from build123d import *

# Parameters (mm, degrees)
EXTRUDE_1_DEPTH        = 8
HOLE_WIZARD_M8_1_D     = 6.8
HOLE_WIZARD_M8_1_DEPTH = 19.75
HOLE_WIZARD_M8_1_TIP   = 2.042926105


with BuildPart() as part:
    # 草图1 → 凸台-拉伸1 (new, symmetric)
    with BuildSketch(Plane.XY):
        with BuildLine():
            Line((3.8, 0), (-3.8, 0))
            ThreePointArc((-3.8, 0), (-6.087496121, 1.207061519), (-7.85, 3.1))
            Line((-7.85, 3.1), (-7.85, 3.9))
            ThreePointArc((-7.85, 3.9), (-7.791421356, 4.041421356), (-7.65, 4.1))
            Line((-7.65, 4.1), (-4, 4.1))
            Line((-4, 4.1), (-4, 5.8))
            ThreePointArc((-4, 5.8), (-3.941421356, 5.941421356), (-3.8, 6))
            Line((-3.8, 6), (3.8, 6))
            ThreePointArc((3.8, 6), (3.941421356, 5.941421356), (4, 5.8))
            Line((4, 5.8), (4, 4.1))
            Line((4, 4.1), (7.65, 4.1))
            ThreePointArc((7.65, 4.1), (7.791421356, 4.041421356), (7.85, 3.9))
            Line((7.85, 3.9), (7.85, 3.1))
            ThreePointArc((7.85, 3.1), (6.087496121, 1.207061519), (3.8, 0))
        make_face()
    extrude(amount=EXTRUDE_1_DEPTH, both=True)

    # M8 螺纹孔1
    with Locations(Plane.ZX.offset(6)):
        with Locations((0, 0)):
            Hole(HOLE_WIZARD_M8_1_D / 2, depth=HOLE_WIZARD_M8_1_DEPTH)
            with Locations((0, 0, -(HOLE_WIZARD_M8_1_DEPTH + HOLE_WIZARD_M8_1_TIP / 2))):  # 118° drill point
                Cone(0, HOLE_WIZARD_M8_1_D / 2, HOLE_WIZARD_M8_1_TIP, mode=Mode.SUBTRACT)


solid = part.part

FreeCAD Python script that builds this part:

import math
import FreeCAD as App
import Part
import Sketcher
from FreeCAD import Vector
Q = App.Units.Quantity

doc = App.newDocument("Part")
body = doc.addObject("PartDesign::Body", "Body")

# Sketch on XY plane
sketch1 = body.newObject("Sketcher::SketchObject", "Sketch")
sketch1.AttachmentSupport = (doc.getObject("XY_Plane"), [""])
sketch1.MapMode = "FlatFace"
sketch1.addGeometry([
    Part.LineSegment(Vector(-3.8, 0, 0), Vector(3.8, 0, 0)),  # 0
    Part.ArcOfCircle(Part.Circle(Vector(1.38, 7.36, 0), Vector(0, 0, 1), 7.74), math.radians(-72), math.radians(-33)),  # 1
    Part.LineSegment(Vector(7.85, 3.1, 0), Vector(7.85, 3.9, 0)),  # 2
    Part.ArcOfCircle(Part.Circle(Vector(7.65, 3.9, 0), Vector(0, 0, 1), 0.2), math.radians(0), math.radians(90)),  # 3
    Part.LineSegment(Vector(7.65, 4.1, 0), Vector(4, 4.1, 0)),  # 4
    Part.LineSegment(Vector(4, 4.1, 0), Vector(4, 5.8, 0)),  # 5
    Part.ArcOfCircle(Part.Circle(Vector(3.8, 5.8, 0), Vector(0, 0, 1), 0.2), math.radians(0), math.radians(90)),  # 6
    Part.LineSegment(Vector(3.8, 6, 0), Vector(-3.8, 6, 0)),  # 7
    Part.ArcOfCircle(Part.Circle(Vector(-3.8, 5.8, 0), Vector(0, 0, 1), 0.2), math.radians(90), math.radians(180)),  # 8
    Part.LineSegment(Vector(-4, 5.8, 0), Vector(-4, 4.1, 0)),  # 9
    Part.LineSegment(Vector(-4, 4.1, 0), Vector(-7.65, 4.1, 0)),  # 10
    Part.ArcOfCircle(Part.Circle(Vector(-7.65, 3.9, 0), Vector(0, 0, 1), 0.2), math.radians(90), math.radians(180)),  # 11
    Part.LineSegment(Vector(-7.85, 3.9, 0), Vector(-7.85, 3.1, 0)),  # 12
    Part.ArcOfCircle(Part.Circle(Vector(-1.38, 7.36, 0), Vector(0, 0, 1), 7.74), math.radians(-147), math.radians(-108)),  # 13
], False)
sketch1.addConstraint([
    Sketcher.Constraint("Coincident", 0, 2, 1, 1),
    Sketcher.Constraint("Coincident", 1, 2, 2, 1),
    Sketcher.Constraint("Tangent", 2, 2, 3, 1),
    Sketcher.Constraint("Tangent", 3, 2, 4, 1),
    Sketcher.Constraint("Coincident", 4, 2, 5, 1),
    Sketcher.Constraint("Tangent", 5, 2, 6, 1),
    Sketcher.Constraint("Tangent", 6, 2, 7, 1),
    Sketcher.Constraint("Tangent", 7, 2, 8, 1),
    Sketcher.Constraint("Tangent", 8, 2, 9, 1),
    Sketcher.Constraint("Coincident", 9, 2, 10, 1),
    Sketcher.Constraint("Tangent", 10, 2, 11, 1),
    Sketcher.Constraint("Tangent", 11, 2, 12, 1),
    Sketcher.Constraint("Coincident", 12, 2, 13, 1),
    Sketcher.Constraint("Coincident", 13, 2, 0, 1),
    Sketcher.Constraint("Horizontal", 0),
    Sketcher.Constraint("Vertical", 2),
    Sketcher.Constraint("Horizontal", 4),
    Sketcher.Constraint("Vertical", 5),
    Sketcher.Constraint("Horizontal", 7),
    Sketcher.Constraint("Vertical", 9),
    Sketcher.Constraint("Horizontal", 10),
    Sketcher.Constraint("Vertical", 12),
    Sketcher.Constraint("Equal", 3, 6),
    Sketcher.Constraint("Equal", 6, 8),
    Sketcher.Constraint("Equal", 8, 11),
    Sketcher.Constraint("Equal", 1, 13),
    Sketcher.Constraint("Symmetric", 0, 2, 13, 2, -1, 1),
    Sketcher.Constraint("Symmetric", 3, 3, 11, 3, -2),
    Sketcher.Constraint("Horizontal", 1, 3, 13, 3),
    Sketcher.Constraint("Vertical", 6, 3, 0, 2),
    Sketcher.Constraint("Vertical", 7, 2, 13, 2),
    Sketcher.Constraint("Radius", 3, Q("0.2 mm")),
    Sketcher.Constraint("DistanceX", 0, 1, 0, 2, Q("7.6 mm")),
    Sketcher.Constraint("DistanceY", 2, 1, 2, 2, Q("0.8 mm")),
    Sketcher.Constraint("DistanceY", 5, 1, 5, 2, Q("1.7 mm")),
    Sketcher.Constraint("DistanceY", -1, 1, 6, 2, Q("6 mm")),
    Sketcher.Constraint("DistanceX", 4, 2, 4, 1, Q("3.65 mm")),
    Sketcher.Constraint("Radius", 1, Q("7.744979 mm")),
])
pad1 = body.newObject("PartDesign::Pad", "Pad")
pad1.Profile = sketch1
pad1.Length = 16
pad1.Midplane = True

# Sketch on XZ plane
sketch2 = body.newObject("Sketcher::SketchObject", "Sketch001")
sketch2.AttachmentSupport = (doc.getObject("XZ_Plane"), [""])
sketch2.MapMode = "FlatFace"
sketch2.AttachmentOffset = App.Placement(Vector(0, 0, -6), App.Rotation())
sketch2.addGeometry(Part.Circle(Vector(0, 0, 0), Vector(0, 0, 1), 3.4), False)
sketch2.addConstraint([
    Sketcher.Constraint("Coincident", 0, 3, -1, 1),
    Sketcher.Constraint("Diameter", 0, Q("6.8 mm")),
])
doc.recompute()
hole = body.newObject("PartDesign::Hole", "Hole")
hole.Profile = sketch2
hole.ThreadType = "None"
hole.Diameter = 6.8
hole.DepthType = "Dimension"
hole.Depth = 19.75
hole.DrillPoint = "Angled"
hole.DrillPointAngle = 118
hole.Reversed = True

doc.recompute()
